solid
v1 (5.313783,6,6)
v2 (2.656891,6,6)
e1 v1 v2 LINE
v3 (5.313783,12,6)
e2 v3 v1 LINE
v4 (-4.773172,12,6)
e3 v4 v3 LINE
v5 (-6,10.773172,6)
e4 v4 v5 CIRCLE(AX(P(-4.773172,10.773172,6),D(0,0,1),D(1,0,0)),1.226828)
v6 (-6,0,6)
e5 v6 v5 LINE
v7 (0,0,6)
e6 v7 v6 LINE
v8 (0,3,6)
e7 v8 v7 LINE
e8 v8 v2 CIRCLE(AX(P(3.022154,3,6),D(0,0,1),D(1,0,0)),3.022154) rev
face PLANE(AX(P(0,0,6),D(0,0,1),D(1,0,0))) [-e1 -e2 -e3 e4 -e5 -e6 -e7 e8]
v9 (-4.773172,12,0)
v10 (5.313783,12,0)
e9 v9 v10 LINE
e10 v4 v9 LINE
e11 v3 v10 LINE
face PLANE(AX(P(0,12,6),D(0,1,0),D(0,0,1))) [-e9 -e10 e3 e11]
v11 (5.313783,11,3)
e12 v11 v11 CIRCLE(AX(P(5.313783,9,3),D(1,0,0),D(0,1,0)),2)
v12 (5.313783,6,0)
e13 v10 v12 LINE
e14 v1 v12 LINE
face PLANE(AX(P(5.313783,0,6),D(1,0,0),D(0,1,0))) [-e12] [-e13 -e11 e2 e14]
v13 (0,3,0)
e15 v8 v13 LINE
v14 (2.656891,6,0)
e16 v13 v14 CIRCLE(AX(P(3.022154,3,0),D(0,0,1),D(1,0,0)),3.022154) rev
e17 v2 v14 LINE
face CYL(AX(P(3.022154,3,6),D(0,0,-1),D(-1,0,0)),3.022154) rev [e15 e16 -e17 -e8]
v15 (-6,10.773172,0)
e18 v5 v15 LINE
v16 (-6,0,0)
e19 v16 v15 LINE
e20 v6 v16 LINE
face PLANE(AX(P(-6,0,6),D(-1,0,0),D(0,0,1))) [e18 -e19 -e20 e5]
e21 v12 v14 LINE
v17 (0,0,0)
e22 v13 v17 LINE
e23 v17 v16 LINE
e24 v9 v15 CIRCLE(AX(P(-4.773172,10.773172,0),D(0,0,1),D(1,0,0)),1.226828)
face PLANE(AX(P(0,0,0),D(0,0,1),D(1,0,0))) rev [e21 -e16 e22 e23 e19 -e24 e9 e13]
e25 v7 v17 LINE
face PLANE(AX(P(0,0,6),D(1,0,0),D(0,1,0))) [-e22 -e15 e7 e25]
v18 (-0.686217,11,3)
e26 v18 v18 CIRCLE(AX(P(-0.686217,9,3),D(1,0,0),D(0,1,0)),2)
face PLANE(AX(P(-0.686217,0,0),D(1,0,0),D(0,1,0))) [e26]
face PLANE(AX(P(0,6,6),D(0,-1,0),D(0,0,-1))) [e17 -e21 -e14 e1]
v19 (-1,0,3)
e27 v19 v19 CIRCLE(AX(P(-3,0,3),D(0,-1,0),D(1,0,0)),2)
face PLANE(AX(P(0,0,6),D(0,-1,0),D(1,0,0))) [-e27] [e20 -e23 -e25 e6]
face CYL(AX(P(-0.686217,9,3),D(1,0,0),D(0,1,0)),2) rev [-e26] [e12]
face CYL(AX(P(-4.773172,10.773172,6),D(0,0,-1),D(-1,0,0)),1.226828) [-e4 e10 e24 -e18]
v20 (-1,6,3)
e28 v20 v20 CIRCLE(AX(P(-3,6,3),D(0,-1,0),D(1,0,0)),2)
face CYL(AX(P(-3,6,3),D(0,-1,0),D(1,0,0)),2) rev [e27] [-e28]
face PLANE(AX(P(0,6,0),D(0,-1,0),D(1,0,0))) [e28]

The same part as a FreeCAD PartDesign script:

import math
import FreeCAD as App
import Part
import Sketcher
from FreeCAD import Vector

doc = App.newDocument("Part")
params = doc.addObject("Spreadsheet::Sheet", "Params")
for row, (alias, value) in enumerate([
    ("sketch1_width", "6 mm"),
    ("sketch1_height", "3 mm"),
    ("pad1_length", "6 mm"),
    ("sketch2_radius", "2 mm"),
    ("pocket1_length", "6 mm"),
    ("sketch3_radius", "2 mm"),
    ("pocket2_length", "6 mm"),
], start=1):
    params.set(f"A{row}", alias)
    params.set(f"B{row}", "=" + value)
    params.setAlias(f"B{row}", alias)

body = doc.addObject("PartDesign::Body", "Body")

# Sketch on XY plane
sketch1 = doc.addObject("Sketcher::SketchObject", "Sketch")
body.addObject(sketch1)
sketch1.AttachmentSupport = (doc.XY_Plane, [""])
sketch1.MapMode = "FlatFace"
sketch1.addGeometry([
    Part.LineSegment(Vector(5.3, 12, 0), Vector(-4.8, 12, 0)),  # 0
    Part.ArcOfCircle(Part.Circle(Vector(-4.8, 10.8, 0), Vector(0, 0, 1), 1.2), math.radians(90), math.radians(180)),  # 1
    Part.LineSegment(Vector(-6, 10.8, 0), Vector(-6, 0, 0)),  # 2
    Part.LineSegment(Vector(-6, 0, 0), Vector(0, 0, 0)),  # 3
    Part.LineSegment(Vector(0, 0, 0), Vector(0, 3, 0)),  # 4
    Part.ArcOfCircle(Part.Circle(Vector(3, 3, 0), Vector(0, 0, 1), 3), math.radians(97), math.radians(180)),  # 5
    Part.LineSegment(Vector(2.7, 6, 0), Vector(5.3, 6, 0)),  # 6
    Part.LineSegment(Vector(5.3, 6, 0), Vector(5.3, 12, 0)),  # 7
], False)
sketch1.addConstraint([
    Sketcher.Constraint("Tangent", 0, 2, 1, 1),
    Sketcher.Constraint("Tangent", 1, 2, 2, 1),
    Sketcher.Constraint("Coincident", 2, 2, 3, 1),
    Sketcher.Constraint("Coincident", 3, 2, 4, 1),
    Sketcher.Constraint("Tangent", 4, 2, 5, 2),
    Sketcher.Constraint("Coincident", 5, 1, 6, 1),
    Sketcher.Constraint("Coincident", 6, 2, 7, 1),
    Sketcher.Constraint("Coincident", 7, 2, 0, 1),
    Sketcher.Constraint("Horizontal", 0),
    Sketcher.Constraint("Vertical", 2),
    Sketcher.Constraint("Horizontal", 3),
    Sketcher.Constraint("Vertical", 4),
    Sketcher.Constraint("Horizontal", 6),
    Sketcher.Constraint("Vertical", 7),
    Sketcher.Constraint("Coincident", 3, 2, -1, 1),
    Sketcher.Constraint("Equal", 3, 7),
    Sketcher.Constraint("DistanceX", 3, 1, 3, 2, 6.0),
    Sketcher.Constraint("DistanceY", 4, 1, 4, 2, 3.0),
    Sketcher.Constraint("DistanceY", -1, 1, 0, 2, 12.0),
    Sketcher.Constraint("Radius", 1, 1.226828),
    Sketcher.Constraint("Radius", 5, 3.022154),
    Sketcher.Constraint("DistanceX", 6, 1, 6, 2, 2.656891),
])
sketch1.setExpression("Constraints[16]", "Params.sketch1_width")
sketch1.setExpression("Constraints[17]", "Params.sketch1_height")
pad1 = doc.addObject("PartDesign::Pad", "Pad")
body.addObject(pad1)
pad1.Profile = sketch1
pad1.setExpression("Length", "Params.pad1_length")

# Sketch on YZ plane
sketch2 = doc.addObject("Sketcher::SketchObject", "Sketch001")
body.addObject(sketch2)
sketch2.AttachmentSupport = (doc.YZ_Plane, [""])
sketch2.MapMode = "FlatFace"
sketch2.AttachmentOffset = App.Placement(Vector(0, 0, 5.313783), App.Rotation())
sketch2.addGeometry([
    Part.ArcOfCircle(Part.Circle(Vector(9, 3, 0), Vector(0, 0, 1), 2), math.radians(-45), math.radians(135)),
    Part.ArcOfCircle(Part.Circle(Vector(9, 3, 0), Vector(0, 0, 1), 2), math.radians(135), math.radians(270)),
    Part.ArcOfCircle(Part.Circle(Vector(9, 3, 0), Vector(0, 0, 1), 2), math.radians(-90), math.radians(-45)),
], False)
sketch2.addConstraint([
    Sketcher.Constraint("Tangent", 0, 2, 1, 1),
    Sketcher.Constraint("Tangent", 1, 2, 2, 1),
    Sketcher.Constraint("Tangent", 2, 2, 0, 1),
    Sketcher.Constraint("Vertical", 2, 3, 1, 2),
    Sketcher.Constraint("Radius", 0, 2.0),
    Sketcher.Constraint("DistanceX", -1, 1, 0, 3, 9.0),
    Sketcher.Constraint("DistanceY", -1, 1, 0, 3, 3.0),
    Sketcher.Constraint("DistanceX", -1, 1, 0, 2, 7.585786),
    Sketcher.Constraint("DistanceX", -1, 1, 2, 2, 10.414214),
])
sketch2.setExpression("Constraints[4]", "Params.sketch2_radius")
pocket1 = doc.addObject("PartDesign::Pocket", "Pocket")
body.addObject(pocket1)
pocket1.Profile = sketch2
pocket1.setExpression("Length", "Params.pocket1_length")

# Sketch on XZ plane
sketch3 = doc.addObject("Sketcher::SketchObject", "Sketch002")
body.addObject(sketch3)
sketch3.AttachmentSupport = (doc.XZ_Plane, [""])
sketch3.MapMode = "FlatFace"
sketch3.addGeometry([
    Part.ArcOfCircle(Part.Circle(Vector(-3, 3, 0), Vector(0, 0, 1), 2), math.radians(45), math.radians(225)),
    Part.ArcOfCircle(Part.Circle(Vector(-3, 3, 0), Vector(0, 0, 1), 2), math.radians(-135), math.radians(0)),
    Part.ArcOfCircle(Part.Circle(Vector(-3, 3, 0), Vector(0, 0, 1), 2), math.radians(0), math.radians(45)),
], False)
sketch3.addConstraint([
    Sketcher.Constraint("Tangent", 0, 2, 1, 1),
    Sketcher.Constraint("Tangent", 1, 2, 2, 1),
    Sketcher.Constraint("Tangent", 2, 2, 0, 1),
    Sketcher.Constraint("Horizontal", 2, 3, 1, 2),
    Sketcher.Constraint("Radius", 0, 2.0),
    Sketcher.Constraint("DistanceX", 0, 3, -1, 1, 3.0),
    Sketcher.Constraint("DistanceY", -1, 1, 0, 3, 3.0),
    Sketcher.Constraint("DistanceX", 0, 2, -1, 1, 4.414214),
    Sketcher.Constraint("DistanceX", 2, 2, -1, 1, 1.585786),
])
sketch3.setExpression("Constraints[4]", "Params.sketch3_radius")
pocket2 = doc.addObject("PartDesign::Pocket", "Pocket001")
body.addObject(pocket2)
pocket2.Profile = sketch3
pocket2.setExpression("Length", "Params.pocket2_length")

doc.recompute()
